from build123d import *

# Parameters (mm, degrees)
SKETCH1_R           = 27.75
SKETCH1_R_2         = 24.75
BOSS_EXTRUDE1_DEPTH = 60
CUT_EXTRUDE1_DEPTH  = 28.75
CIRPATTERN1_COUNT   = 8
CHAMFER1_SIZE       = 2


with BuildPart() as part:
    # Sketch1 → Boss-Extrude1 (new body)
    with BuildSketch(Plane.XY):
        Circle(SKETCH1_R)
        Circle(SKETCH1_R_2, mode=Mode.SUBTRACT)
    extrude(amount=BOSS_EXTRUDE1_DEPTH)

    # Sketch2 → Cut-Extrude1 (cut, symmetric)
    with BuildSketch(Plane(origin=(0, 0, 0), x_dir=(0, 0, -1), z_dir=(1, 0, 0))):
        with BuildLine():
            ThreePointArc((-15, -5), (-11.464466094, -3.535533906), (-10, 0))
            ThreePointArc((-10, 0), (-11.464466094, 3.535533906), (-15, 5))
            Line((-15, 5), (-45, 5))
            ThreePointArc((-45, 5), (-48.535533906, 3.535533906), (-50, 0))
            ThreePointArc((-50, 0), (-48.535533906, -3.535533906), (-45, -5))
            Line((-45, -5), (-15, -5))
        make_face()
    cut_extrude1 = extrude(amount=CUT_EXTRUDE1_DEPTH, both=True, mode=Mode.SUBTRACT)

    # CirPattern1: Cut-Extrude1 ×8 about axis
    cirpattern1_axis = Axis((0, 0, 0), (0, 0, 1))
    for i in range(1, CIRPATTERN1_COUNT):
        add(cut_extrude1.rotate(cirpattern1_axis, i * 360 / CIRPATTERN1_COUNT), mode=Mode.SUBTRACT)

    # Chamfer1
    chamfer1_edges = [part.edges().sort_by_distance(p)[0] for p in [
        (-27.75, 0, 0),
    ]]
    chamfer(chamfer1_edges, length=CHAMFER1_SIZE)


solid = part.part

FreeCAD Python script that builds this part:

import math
import FreeCAD as App
import Part
import Sketcher

V = App.Vector
Q = App.Units.Quantity


def edges_at(feature, points):
    """Names of the edges that pass closest to the given points."""
    edges = feature.Shape.Edges
    near = lambda p: min(range(len(edges)), key=lambda i: edges[i].distToShape(Part.Vertex(*p))[0])
    return sorted({f"Edge{near(p) + 1}" for p in points})

doc = App.newDocument("Part")
body = doc.addObject("PartDesign::Body", "Body")

# Sketch on XY plane
sketch1 = body.newObject("Sketcher::SketchObject", "Sketch")
sketch1.AttachmentSupport = (doc.getObject("XY_Plane"), [""])
sketch1.MapMode = "FlatFace"
sketch1.addGeometry([
    Part.Circle(V(0, 0, 0), V(0, 0, 1), 28),
    Part.Circle(V(0, 0, 0), V(0, 0, 1), 25),
], False)
sketch1.addConstraint([
    Sketcher.Constraint("Coincident", 0, 3, -1, 1),
    Sketcher.Constraint("Coincident", 1, 3, -1, 1),
    Sketcher.Constraint("Diameter", 0, Q("55.5 mm")),
    Sketcher.Constraint("Diameter", 1, Q("49.5 mm")),
])
pad1 = body.newObject("PartDesign::Pad", "Pad")
pad1.Profile = sketch1
pad1.Length = 60

# Sketch on YZ plane
sketch2 = body.newObject("Sketcher::SketchObject", "Sketch001")
sketch2.AttachmentSupport = (doc.getObject("YZ_Plane"), [""])
sketch2.MapMode = "FlatFace"
sketch2.addGeometry([
    Part.ArcOfCircle(Part.Circle(V(0, 15, 0), V(0, 0, 1), 5), math.radians(180), math.radians(270)),  # 0
    Part.ArcOfCircle(Part.Circle(V(0, 15, 0), V(0, 0, 1), 5), math.radians(-90), math.radians(0)),  # 1
    Part.LineSegment(V(5, 15, 0), V(5, 45, 0)),  # 2
    Part.ArcOfCircle(Part.Circle(V(0, 45, 0), V(0, 0, 1), 5), math.radians(0), math.radians(90)),  # 3
    Part.ArcOfCircle(Part.Circle(V(0, 45, 0), V(0, 0, 1), 5), math.radians(90), math.radians(180)),  # 4
    Part.LineSegment(V(-5, 45, 0), V(-5, 15, 0)),  # 5
], False)
sketch2.addConstraint([
    Sketcher.Constraint("Tangent", 0, 2, 1, 1),
    Sketcher.Constraint("Tangent", 1, 2, 2, 1),
    Sketcher.Constraint("Tangent", 2, 2, 3, 1),
    Sketcher.Constraint("Tangent", 3, 2, 4, 1),
    Sketcher.Constraint("Tangent", 4, 2, 5, 1),
    Sketcher.Constraint("Tangent", 5, 2, 0, 1),
    Sketcher.Constraint("Vertical", 2),
    Sketcher.Constraint("Vertical", 5),
    Sketcher.Constraint("Equal", 0, 1),
    Sketcher.Constraint("Equal", 1, 3),
    Sketcher.Constraint("PointOnObject", 0, 3, -2),
    Sketcher.Constraint("PointOnObject", 0, 2, -2),
    Sketcher.Constraint("PointOnObject", 3, 2, -2),
    Sketcher.Constraint("Radius", 0, Q("5 mm")),
    Sketcher.Constraint("DistanceY", 2, 1, 2, 2, Q("30 mm")),
    Sketcher.Constraint("DistanceY", -1, 1, 0, 3, Q("15 mm")),
])
pocket1 = body.newObject("PartDesign::Pocket", "Pocket")
pocket1.Profile = sketch2
pocket1.Length = 57.5
pocket1.Midplane = True
doc.recompute()

polarpattern = body.newObject("PartDesign::PolarPattern", "PolarPattern")
polarpattern.Originals = [pocket1]
polarpattern.Axis = (doc.getObject("Z_Axis"), [""])
polarpattern.Angle = 360
polarpattern.Occurrences = 8
body.Tip = polarpattern
doc.recompute()

chamfer = body.newObject("PartDesign::Chamfer", "Chamfer")
chamfer.Base = (polarpattern, edges_at(polarpattern, [(-27.75, 0, 0)]))
chamfer.Size = 2

doc.recompute()
